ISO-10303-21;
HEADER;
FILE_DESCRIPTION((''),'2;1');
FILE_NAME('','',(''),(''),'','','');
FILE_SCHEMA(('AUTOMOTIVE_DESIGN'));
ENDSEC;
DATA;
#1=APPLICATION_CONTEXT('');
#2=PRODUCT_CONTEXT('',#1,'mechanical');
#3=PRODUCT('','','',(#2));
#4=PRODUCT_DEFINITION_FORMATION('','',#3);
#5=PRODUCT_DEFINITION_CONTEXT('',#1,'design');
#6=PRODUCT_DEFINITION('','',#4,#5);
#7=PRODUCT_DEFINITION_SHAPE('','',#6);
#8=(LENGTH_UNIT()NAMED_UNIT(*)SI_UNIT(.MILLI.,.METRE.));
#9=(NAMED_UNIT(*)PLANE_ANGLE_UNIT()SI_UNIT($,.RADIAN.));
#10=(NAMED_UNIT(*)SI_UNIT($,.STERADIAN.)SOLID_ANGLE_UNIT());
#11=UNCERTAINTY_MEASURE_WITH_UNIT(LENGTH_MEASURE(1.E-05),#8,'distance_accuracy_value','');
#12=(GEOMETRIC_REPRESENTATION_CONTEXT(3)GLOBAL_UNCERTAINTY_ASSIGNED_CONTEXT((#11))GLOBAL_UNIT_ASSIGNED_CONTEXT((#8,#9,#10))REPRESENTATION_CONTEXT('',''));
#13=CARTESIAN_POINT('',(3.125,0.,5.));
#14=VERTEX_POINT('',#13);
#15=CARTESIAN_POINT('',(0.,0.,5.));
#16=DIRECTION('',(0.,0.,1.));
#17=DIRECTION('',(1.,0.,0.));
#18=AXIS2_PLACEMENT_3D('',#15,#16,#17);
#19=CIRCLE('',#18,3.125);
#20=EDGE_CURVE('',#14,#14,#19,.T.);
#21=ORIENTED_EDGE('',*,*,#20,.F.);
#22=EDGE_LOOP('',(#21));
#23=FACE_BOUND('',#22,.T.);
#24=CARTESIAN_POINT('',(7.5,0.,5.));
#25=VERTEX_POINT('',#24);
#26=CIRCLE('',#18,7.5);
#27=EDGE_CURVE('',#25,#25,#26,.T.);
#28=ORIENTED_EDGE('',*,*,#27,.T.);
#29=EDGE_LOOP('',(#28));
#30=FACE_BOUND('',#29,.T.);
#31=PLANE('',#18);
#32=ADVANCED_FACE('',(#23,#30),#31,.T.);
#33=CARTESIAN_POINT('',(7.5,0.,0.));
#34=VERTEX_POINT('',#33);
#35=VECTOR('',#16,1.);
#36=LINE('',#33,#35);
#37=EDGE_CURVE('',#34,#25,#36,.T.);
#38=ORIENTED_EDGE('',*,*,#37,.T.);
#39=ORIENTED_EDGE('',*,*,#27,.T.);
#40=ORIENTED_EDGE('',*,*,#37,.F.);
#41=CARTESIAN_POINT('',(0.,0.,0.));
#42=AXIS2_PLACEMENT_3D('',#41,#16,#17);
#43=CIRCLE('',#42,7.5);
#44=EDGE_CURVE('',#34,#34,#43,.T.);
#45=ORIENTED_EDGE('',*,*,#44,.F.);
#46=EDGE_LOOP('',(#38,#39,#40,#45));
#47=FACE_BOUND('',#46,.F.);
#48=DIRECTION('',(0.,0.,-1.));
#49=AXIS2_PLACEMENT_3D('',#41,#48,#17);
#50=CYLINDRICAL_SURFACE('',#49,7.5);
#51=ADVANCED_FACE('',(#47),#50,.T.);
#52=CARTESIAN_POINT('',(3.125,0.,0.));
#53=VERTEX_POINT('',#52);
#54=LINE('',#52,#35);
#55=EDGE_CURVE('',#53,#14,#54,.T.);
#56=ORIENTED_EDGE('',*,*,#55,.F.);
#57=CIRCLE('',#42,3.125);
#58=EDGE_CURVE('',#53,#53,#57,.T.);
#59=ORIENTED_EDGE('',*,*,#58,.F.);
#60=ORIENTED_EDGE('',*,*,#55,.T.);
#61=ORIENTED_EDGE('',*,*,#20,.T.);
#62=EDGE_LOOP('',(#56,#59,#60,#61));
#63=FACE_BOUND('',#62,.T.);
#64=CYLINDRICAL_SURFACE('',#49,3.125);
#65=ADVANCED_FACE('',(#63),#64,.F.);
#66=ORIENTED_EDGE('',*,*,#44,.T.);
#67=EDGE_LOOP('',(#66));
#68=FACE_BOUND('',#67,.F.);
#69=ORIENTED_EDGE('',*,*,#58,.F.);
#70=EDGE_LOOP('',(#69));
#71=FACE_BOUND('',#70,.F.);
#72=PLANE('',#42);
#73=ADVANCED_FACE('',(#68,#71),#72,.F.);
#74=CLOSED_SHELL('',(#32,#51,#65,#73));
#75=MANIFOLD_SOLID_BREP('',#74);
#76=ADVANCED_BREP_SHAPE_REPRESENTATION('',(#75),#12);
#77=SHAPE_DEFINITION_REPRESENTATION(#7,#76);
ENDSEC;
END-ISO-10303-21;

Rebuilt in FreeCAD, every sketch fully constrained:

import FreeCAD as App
import Part
import Sketcher
from FreeCAD import Vector

doc = App.newDocument("Part")
body = doc.addObject("PartDesign::Body", "Body")

# Sketch on XY plane
sketch1 = doc.addObject("Sketcher::SketchObject", "Sketch")
body.addObject(sketch1)
sketch1.AttachmentSupport = (doc.XY_Plane, [""])
sketch1.MapMode = "FlatFace"
sketch1.addGeometry(Part.Circle(Vector(0, 0, 0), Vector(0, 0, 1), 7.5), False)
sketch1.addGeometry(Part.Circle(Vector(0, 0, 0), Vector(0, 0, 1), 3.1), False)
sketch1.addConstraint(Sketcher.Constraint("Coincident", 0, 3, -1, 1))
sketch1.addConstraint(Sketcher.Constraint("Coincident", 1, 3, -1, 1))
sketch1.addConstraint(Sketcher.Constraint("Diameter", 0, 15.0))
sketch1.addConstraint(Sketcher.Constraint("Diameter", 1, 6.25))
pad1 = doc.addObject("PartDesign::Pad", "Pad")
body.addObject(pad1)
pad1.Profile = sketch1
pad1.Length = 5

doc.recompute()
